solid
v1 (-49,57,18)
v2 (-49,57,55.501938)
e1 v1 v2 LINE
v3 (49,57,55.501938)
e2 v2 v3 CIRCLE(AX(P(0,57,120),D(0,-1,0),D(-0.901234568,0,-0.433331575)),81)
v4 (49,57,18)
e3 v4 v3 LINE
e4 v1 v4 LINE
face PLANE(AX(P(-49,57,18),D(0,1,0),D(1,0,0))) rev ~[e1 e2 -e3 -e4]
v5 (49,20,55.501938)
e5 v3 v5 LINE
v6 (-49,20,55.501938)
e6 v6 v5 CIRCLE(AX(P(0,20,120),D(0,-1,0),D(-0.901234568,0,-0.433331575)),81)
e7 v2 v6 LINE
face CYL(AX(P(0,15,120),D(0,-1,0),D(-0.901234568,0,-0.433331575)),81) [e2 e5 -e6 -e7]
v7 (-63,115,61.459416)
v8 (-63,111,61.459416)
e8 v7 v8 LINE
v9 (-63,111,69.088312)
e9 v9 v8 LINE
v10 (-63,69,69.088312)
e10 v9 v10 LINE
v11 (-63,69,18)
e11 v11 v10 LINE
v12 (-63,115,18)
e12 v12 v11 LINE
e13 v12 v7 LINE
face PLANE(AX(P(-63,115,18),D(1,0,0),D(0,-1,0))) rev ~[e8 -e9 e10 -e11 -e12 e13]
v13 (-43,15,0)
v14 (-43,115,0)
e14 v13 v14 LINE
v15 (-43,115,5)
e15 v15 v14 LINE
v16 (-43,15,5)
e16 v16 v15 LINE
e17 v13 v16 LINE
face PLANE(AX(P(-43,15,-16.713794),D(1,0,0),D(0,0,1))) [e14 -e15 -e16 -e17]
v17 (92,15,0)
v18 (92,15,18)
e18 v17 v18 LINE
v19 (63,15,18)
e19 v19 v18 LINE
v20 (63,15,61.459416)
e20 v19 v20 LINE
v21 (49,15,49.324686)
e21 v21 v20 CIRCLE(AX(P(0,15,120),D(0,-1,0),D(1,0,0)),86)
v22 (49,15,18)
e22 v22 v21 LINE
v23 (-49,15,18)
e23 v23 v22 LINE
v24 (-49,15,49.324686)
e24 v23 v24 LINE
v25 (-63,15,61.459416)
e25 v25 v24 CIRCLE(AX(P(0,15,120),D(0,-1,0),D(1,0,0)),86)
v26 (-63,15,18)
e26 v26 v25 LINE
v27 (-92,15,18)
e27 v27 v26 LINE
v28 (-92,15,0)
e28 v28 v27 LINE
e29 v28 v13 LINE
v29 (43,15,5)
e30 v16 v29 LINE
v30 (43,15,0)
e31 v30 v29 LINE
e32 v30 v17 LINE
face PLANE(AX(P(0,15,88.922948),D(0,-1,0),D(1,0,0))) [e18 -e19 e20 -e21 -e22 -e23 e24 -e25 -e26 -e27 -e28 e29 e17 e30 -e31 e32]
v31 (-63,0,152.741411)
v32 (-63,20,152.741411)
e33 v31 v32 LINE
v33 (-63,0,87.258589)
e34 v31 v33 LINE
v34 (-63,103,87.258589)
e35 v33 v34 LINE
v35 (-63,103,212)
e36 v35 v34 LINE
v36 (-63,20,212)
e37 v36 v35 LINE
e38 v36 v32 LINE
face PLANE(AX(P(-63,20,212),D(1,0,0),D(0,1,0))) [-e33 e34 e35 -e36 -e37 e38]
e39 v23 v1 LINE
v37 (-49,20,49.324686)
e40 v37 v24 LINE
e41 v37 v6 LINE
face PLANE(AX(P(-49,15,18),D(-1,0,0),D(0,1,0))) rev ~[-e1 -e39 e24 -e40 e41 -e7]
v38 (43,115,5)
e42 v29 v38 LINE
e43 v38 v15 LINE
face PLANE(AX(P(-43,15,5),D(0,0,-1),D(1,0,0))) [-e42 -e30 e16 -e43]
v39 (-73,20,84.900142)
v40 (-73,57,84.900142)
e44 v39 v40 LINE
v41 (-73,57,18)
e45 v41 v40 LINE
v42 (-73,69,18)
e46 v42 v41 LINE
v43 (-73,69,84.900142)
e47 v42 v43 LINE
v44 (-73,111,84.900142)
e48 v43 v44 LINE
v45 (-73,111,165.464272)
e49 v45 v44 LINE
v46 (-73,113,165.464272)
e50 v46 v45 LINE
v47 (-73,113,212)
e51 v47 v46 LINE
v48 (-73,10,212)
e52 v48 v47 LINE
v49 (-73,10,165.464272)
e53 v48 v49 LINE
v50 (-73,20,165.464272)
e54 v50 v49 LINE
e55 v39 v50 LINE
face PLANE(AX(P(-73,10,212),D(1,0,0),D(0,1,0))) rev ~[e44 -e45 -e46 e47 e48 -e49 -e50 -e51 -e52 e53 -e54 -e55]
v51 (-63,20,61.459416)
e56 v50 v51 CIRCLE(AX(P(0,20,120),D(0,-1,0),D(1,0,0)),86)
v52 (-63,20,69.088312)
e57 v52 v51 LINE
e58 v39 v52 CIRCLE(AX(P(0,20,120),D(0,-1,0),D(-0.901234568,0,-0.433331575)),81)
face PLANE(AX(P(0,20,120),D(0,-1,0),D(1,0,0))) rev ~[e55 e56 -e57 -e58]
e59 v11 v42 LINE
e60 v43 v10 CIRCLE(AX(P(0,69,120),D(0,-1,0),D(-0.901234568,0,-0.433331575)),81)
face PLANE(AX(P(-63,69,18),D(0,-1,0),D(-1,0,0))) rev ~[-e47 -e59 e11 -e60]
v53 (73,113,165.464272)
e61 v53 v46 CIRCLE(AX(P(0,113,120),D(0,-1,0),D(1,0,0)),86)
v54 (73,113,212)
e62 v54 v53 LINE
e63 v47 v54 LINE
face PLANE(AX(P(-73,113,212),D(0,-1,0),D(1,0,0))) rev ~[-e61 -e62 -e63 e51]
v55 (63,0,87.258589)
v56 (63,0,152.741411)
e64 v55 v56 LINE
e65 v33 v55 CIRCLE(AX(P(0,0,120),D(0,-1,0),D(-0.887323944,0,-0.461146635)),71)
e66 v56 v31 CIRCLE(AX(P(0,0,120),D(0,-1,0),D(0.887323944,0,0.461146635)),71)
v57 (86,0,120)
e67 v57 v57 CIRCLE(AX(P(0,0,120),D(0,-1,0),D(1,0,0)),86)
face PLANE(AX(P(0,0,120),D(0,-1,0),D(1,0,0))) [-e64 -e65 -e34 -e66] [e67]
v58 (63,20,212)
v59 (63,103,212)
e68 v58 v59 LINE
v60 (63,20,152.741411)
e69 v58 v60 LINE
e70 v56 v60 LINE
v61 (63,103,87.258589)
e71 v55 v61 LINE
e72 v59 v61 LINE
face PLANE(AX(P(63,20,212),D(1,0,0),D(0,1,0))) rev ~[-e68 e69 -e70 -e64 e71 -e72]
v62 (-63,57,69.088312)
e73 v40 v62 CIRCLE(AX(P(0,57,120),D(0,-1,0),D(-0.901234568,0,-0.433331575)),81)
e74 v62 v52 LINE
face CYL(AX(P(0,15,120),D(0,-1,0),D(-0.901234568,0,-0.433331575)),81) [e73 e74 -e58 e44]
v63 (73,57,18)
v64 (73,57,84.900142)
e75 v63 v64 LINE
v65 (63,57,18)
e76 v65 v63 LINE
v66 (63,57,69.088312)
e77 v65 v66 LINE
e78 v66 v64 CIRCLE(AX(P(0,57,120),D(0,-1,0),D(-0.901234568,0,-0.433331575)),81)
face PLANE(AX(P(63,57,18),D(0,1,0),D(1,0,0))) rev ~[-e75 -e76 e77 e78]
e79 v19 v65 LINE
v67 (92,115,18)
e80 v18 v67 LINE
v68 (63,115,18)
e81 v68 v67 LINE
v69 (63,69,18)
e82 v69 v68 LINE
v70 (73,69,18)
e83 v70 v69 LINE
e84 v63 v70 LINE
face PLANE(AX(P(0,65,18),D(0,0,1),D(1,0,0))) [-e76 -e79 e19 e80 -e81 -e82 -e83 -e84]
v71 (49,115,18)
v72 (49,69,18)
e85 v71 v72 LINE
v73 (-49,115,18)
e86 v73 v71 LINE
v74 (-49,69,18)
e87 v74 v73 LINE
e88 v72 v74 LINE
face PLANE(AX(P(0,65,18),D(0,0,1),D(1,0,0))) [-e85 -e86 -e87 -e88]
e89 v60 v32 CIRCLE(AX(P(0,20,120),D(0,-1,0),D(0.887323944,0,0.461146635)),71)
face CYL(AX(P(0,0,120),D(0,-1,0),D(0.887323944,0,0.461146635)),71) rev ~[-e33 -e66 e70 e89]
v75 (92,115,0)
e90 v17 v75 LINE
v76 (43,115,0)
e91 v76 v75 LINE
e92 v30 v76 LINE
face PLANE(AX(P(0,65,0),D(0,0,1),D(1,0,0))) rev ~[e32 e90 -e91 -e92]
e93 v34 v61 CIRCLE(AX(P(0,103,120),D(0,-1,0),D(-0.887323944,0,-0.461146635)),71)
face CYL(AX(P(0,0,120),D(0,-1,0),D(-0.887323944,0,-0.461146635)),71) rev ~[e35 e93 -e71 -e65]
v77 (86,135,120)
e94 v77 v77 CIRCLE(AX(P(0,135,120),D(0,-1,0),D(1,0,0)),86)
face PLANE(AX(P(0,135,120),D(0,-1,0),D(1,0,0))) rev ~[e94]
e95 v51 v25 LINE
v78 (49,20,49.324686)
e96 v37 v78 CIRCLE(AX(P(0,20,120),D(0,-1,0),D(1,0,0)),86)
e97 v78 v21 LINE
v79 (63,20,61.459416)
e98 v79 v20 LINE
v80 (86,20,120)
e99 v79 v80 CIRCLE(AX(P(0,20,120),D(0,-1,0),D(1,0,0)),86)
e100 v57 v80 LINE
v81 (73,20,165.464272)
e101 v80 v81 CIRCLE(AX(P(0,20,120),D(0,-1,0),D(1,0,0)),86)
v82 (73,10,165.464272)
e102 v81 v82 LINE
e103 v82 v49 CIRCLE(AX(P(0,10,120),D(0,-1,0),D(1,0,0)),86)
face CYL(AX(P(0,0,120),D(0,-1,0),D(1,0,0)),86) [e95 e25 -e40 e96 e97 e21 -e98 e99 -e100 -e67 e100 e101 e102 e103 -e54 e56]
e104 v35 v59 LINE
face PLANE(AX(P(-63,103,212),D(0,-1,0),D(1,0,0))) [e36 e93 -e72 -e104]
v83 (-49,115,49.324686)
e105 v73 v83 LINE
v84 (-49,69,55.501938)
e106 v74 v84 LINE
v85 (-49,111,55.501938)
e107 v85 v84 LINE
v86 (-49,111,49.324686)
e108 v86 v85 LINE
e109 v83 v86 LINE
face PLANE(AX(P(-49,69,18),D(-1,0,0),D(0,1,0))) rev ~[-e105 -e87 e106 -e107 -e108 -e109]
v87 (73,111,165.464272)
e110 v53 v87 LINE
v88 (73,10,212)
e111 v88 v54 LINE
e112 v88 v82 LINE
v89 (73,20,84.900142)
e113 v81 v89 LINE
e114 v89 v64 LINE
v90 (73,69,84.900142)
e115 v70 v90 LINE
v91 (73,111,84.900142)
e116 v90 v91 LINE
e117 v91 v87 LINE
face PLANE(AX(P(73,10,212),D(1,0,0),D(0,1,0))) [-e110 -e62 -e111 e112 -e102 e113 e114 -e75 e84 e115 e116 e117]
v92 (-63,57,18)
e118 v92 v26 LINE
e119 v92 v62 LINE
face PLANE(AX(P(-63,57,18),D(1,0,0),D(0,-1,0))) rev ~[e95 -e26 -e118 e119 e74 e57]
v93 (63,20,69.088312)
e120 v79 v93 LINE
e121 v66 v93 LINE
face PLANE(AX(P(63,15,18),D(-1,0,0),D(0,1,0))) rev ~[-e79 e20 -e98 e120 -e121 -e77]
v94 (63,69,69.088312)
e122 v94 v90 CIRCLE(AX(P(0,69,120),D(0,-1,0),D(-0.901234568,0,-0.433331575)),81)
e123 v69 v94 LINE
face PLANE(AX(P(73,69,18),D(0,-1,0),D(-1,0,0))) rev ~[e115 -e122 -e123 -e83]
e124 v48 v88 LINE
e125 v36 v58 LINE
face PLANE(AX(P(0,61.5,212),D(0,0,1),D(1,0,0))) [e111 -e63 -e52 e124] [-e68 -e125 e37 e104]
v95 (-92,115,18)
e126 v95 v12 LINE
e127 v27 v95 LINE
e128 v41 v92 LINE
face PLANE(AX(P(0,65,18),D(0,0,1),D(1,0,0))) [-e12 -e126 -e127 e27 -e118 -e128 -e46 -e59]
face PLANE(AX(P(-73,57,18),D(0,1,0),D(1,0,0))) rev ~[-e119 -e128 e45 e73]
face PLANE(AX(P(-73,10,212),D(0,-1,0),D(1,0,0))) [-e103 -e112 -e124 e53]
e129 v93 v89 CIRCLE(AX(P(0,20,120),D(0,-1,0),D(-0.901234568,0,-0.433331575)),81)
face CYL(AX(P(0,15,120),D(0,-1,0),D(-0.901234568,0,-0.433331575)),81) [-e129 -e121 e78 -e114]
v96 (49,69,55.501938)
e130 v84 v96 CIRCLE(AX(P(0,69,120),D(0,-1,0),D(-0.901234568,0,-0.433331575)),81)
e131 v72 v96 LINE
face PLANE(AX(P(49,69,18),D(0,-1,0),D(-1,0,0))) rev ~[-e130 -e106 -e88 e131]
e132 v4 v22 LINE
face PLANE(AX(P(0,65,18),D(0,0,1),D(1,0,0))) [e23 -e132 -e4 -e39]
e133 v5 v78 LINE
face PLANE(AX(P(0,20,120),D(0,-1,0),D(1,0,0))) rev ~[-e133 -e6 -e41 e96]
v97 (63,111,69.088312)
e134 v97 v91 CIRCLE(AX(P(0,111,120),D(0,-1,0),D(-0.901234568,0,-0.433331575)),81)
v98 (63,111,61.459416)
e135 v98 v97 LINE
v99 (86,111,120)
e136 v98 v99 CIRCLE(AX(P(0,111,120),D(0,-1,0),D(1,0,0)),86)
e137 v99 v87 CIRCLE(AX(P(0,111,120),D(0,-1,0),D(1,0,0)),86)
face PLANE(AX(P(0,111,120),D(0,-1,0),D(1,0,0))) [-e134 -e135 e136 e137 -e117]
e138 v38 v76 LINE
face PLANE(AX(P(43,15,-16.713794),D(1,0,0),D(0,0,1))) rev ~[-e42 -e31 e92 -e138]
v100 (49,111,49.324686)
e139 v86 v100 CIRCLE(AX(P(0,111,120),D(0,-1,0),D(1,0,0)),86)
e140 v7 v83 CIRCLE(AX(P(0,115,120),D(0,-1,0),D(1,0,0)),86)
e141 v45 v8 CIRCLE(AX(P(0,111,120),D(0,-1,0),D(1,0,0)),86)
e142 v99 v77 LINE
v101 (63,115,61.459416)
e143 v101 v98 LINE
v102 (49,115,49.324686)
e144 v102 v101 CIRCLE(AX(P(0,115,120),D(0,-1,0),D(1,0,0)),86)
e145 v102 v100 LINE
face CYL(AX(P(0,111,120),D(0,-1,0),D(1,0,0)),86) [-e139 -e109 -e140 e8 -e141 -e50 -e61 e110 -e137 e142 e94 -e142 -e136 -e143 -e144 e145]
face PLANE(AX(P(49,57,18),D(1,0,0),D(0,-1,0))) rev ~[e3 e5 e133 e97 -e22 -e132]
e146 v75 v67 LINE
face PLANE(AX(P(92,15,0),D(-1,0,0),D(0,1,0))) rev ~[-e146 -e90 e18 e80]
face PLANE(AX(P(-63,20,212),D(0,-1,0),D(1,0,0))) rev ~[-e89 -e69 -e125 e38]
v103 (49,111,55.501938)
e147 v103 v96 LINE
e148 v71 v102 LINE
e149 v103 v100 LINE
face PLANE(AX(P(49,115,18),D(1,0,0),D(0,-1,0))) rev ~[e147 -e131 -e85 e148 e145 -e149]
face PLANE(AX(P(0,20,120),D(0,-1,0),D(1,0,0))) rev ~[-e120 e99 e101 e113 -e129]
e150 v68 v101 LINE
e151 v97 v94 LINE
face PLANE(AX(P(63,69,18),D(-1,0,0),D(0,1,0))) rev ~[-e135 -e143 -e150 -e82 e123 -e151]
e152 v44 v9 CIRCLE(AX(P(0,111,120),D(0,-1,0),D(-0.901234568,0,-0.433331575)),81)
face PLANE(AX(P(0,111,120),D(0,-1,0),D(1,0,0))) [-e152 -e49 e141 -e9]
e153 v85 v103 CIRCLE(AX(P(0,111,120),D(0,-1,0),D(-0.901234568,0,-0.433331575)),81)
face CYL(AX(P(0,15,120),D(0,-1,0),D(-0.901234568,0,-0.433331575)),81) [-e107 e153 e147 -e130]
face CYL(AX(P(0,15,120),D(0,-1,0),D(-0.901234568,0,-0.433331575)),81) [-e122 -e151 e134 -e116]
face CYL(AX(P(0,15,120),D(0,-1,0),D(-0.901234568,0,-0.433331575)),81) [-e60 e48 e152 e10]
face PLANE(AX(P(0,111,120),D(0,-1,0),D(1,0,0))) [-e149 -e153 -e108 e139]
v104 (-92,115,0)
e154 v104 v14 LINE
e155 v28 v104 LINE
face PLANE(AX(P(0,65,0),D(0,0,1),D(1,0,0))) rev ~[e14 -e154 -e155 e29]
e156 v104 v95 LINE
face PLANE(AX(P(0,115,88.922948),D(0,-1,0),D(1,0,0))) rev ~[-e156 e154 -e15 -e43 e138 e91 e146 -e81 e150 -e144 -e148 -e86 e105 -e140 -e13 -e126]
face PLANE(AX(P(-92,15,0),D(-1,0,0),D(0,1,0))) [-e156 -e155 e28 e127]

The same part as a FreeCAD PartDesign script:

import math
import FreeCAD as App
import Part
import Sketcher


def add_polygon(sketch, points):
    """Adds a closed chain of lines whose ends are joined by coincident constraints."""
    first, n = sketch.GeometryCount, len(points)
    for a, b in zip(points, points[1:] + points[:1]):
        sketch.addGeometry(Part.LineSegment(App.Vector(*a, 0), App.Vector(*b, 0)), False)
    for i in range(n):
        sketch.addConstraint(Sketcher.Constraint("Coincident", first + i, 2, first + (i + 1) % n, 1))

doc = App.newDocument("Part")
body = doc.addObject("PartDesign::Body", "Body")

sketch1 = body.newObject("Sketcher::SketchObject", "Sketch")
sketch1.AttachmentSupport = (doc.getObject("XY_Plane"), [""])
sketch1.MapMode = "FlatFace"
add_polygon(sketch1, [(-92, 115), (-92, 15), (92, 15), (92, 115)])
sketch1.addConstraint([
    Sketcher.Constraint("Vertical", 0),
    Sketcher.Constraint("Horizontal", 1),
    Sketcher.Constraint("Vertical", 2),
    Sketcher.Constraint("Horizontal", 3),
    Sketcher.Constraint("DistanceX", 1, 1, 1, 2, 184.0),
    Sketcher.Constraint("DistanceY", 0, 2, 0, 1, 100.0),
    Sketcher.Constraint("DistanceX", 0, 2, -1, 1, 92.0),
    Sketcher.Constraint("DistanceY", -1, 1, 0, 2, 15.0),
])
pad1 = body.newObject("PartDesign::Pad", "Pad")
pad1.Profile = sketch1
pad1.Length = 18

sketch2 = body.newObject("Sketcher::SketchObject", "Sketch001")
sketch2.AttachmentSupport = (doc.getObject("XZ_Plane"), [""])
sketch2.MapMode = "FlatFace"
sketch2.AttachmentOffset = App.Placement(App.Vector(0, 0, -15), App.Rotation())
add_polygon(sketch2, [(-43, 5), (-43, -17), (43, -17), (43, 5)])
sketch2.addConstraint([
    Sketcher.Constraint("Vertical", 0),
    Sketcher.Constraint("Horizontal", 1),
    Sketcher.Constraint("Vertical", 2),
    Sketcher.Constraint("Horizontal", 3),
    Sketcher.Constraint("DistanceX", 1, 1, 1, 2, 86.0),
    Sketcher.Constraint("DistanceX", 0, 2, -1, 1, 43.0),
    Sketcher.Constraint("DistanceY", -1, 1, 2, 2, 5.0),
    Sketcher.Constraint("DistanceY", 0, 2, 0, 1, 21.713794),
])
pocket1 = body.newObject("PartDesign::Pocket", "Pocket")
pocket1.Profile = sketch2
pocket1.Type = "ThroughAll"

sketch3 = body.newObject("Sketcher::SketchObject", "Sketch002")
sketch3.AttachmentSupport = (doc.getObject("XY_Plane"), [""])
sketch3.MapMode = "FlatFace"
sketch3.AttachmentOffset = App.Placement(App.Vector(0, 0, 18), App.Rotation())
add_polygon(sketch3, [(-63, 57), (-63, 15), (-49, 15), (-49, 57), (49, 57), (49, 15), (63, 15), (63, 57), (73, 57), (73, 69), (63, 69), (63, 115), (49, 115), (49, 69), (-49, 69), (-49, 115), (-63, 115), (-63, 69), (-73, 69), (-73, 57)])
sketch3.addConstraint([
    Sketcher.Constraint("Vertical", 0),
    Sketcher.Constraint("Horizontal", 1),
    Sketcher.Constraint("Vertical", 2),
    Sketcher.Constraint("Horizontal", 3),
    Sketcher.Constraint("Vertical", 4),
    Sketcher.Constraint("Horizontal", 5),
    Sketcher.Constraint("Vertical", 6),
    Sketcher.Constraint("Horizontal", 7),
    Sketcher.Constraint("Vertical", 8),
    Sketcher.Constraint("Horizontal", 9),
    Sketcher.Constraint("Vertical", 10),
    Sketcher.Constraint("Horizontal", 11),
    Sketcher.Constraint("Vertical", 12),
    Sketcher.Constraint("Horizontal", 13),
    Sketcher.Constraint("Vertical", 14),
    Sketcher.Constraint("Horizontal", 15),
    Sketcher.Constraint("Vertical", 16),
    Sketcher.Constraint("Horizontal", 17),
    Sketcher.Constraint("Vertical", 18),
    Sketcher.Constraint("Horizontal", 19),
    Sketcher.Constraint("Symmetric", 1, 2, 4, 2, -2),
    Sketcher.Constraint("Symmetric", 11, 2, 14, 2, -2),
    Sketcher.Constraint("Symmetric", 9, 2, 16, 2, -2),
    Sketcher.Constraint("Symmetric", 7, 2, 18, 2, -2),
    Sketcher.Constraint("Horizontal", 3, 2, 6, 2),
    Sketcher.Constraint("Horizontal", 9, 2, 12, 2),
    Sketcher.Constraint("Vertical", 6, 2, 9, 2),
    Sketcher.Constraint("Vertical", 4, 2, 11, 2),
    Sketcher.Constraint("Vertical", 0, 2, 15, 2),
    Sketcher.Constraint("DistanceX", 1, 1, 1, 2, 14.0),
    Sketcher.Constraint("DistanceX", 3, 1, 3, 2, 98.0),
    Sketcher.Constraint("DistanceX", 7, 1, 7, 2, 10.0),
    Sketcher.Constraint("DistanceY", 0, 2, 0, 1, 42.0),
    Sketcher.Constraint("DistanceY", 8, 1, 8, 2, 12.0),
    Sketcher.Constraint("DistanceY", 10, 1, 10, 2, 46.0),
    Sketcher.Constraint("DistanceY", -1, 1, 0, 2, 15.0),
])
pad2 = body.newObject("PartDesign::Pad", "Pad001")
pad2.Profile = sketch3
pad2.Length = 92

sketch4 = body.newObject("Sketcher::SketchObject", "Sketch003")
sketch4.AttachmentSupport = (doc.getObject("XZ_Plane"), [""])
sketch4.MapMode = "FlatFace"
sketch4.AttachmentOffset = App.Placement(App.Vector(0, 0, -15), App.Rotation())
sketch4.addGeometry([
    Part.LineSegment(App.Vector(-73, 120, 0), App.Vector(-73, 85, 0)),
    Part.ArcOfCircle(Part.Circle(App.Vector(0, 120, 0), App.Vector(0, 0, 1), 81), math.radians(-154), math.radians(-26)),
    Part.LineSegment(App.Vector(73, 85, 0), App.Vector(73, 120, 0)),
    Part.LineSegment(App.Vector(73, 120, 0), App.Vector(-73, 120, 0)),
], False)
sketch4.addConstraint([
    Sketcher.Constraint("Coincident", 0, 2, 1, 1),
    Sketcher.Constraint("Coincident", 1, 2, 2, 1),
    Sketcher.Constraint("Coincident", 2, 2, 3, 1),
    Sketcher.Constraint("Coincident", 3, 2, 0, 1),
    Sketcher.Constraint("Vertical", 0),
    Sketcher.Constraint("Vertical", 2),
    Sketcher.Constraint("Horizontal", 3),
    Sketcher.Constraint("Symmetric", 0, 2, 1, 2, -2),
    Sketcher.Constraint("Horizontal", 1, 3, 2, 2),
    Sketcher.Constraint("Radius", 1, 81.0),
    Sketcher.Constraint("DistanceX", 3, 2, 3, 1, 146.0),
    Sketcher.Constraint("DistanceY", -1, 1, 1, 3, 120.0),
])
pad3 = body.newObject("PartDesign::Pad", "Pad002")
pad3.Profile = sketch4
pad3.Length = 100
pad3.Reversed = True

sketch5 = body.newObject("Sketcher::SketchObject", "Sketch004")
sketch5.AttachmentSupport = (doc.getObject("XZ_Plane"), [""])
sketch5.MapMode = "FlatFace"
sketch5.addGeometry(Part.Circle(App.Vector(0, 120, 0), App.Vector(0, 0, 1), 86), False)
sketch5.addConstraint([
    Sketcher.Constraint("PointOnObject", 0, 3, -2),
    Sketcher.Constraint("Diameter", 0, 172.0),
    Sketcher.Constraint("DistanceY", -1, 1, 0, 3, 120.0),
])
pad4 = body.newObject("PartDesign::Pad", "Pad003")
pad4.Profile = sketch5
pad4.Length = 20
pad4.Reversed = True

sketch6 = body.newObject("Sketcher::SketchObject", "Sketch005")
sketch6.AttachmentSupport = (doc.getObject("XZ_Plane"), [""])
sketch6.MapMode = "FlatFace"
sketch6.AttachmentOffset = App.Placement(App.Vector(0, 0, -111), App.Rotation())
sketch6.addGeometry(Part.Circle(App.Vector(0, 120, 0), App.Vector(0, 0, 1), 86), False)
sketch6.addConstraint([
    Sketcher.Constraint("PointOnObject", 0, 3, -2),
    Sketcher.Constraint("Diameter", 0, 172.0),
    Sketcher.Constraint("DistanceY", -1, 1, 0, 3, 120.0),
])
pad5 = body.newObject("PartDesign::Pad", "Pad004")
pad5.Profile = sketch6
pad5.Length = 24
pad5.Reversed = True

sketch7 = body.newObject("Sketcher::SketchObject", "Sketch006")
sketch7.AttachmentSupport = (doc.getObject("XY_Plane"), [""])
sketch7.MapMode = "FlatFace"
sketch7.AttachmentOffset = App.Placement(App.Vector(0, 0, 212), App.Rotation())
add_polygon(sketch7, [(-73, 113), (-73, 10), (73, 10), (73, 113)])
sketch7.addConstraint([
    Sketcher.Constraint("Vertical", 0),
    Sketcher.Constraint("Horizontal", 1),
    Sketcher.Constraint("Vertical", 2),
    Sketcher.Constraint("Horizontal", 3),
    Sketcher.Constraint("DistanceX", 1, 1, 1, 2, 146.0),
    Sketcher.Constraint("DistanceY", 0, 2, 0, 1, 103.0),
    Sketcher.Constraint("DistanceX", 0, 2, -1, 1, 73.0),
    Sketcher.Constraint("DistanceY", -1, 1, 0, 2, 10.0),
])
pad6 = body.newObject("PartDesign::Pad", "Pad005")
pad6.Profile = sketch7
pad6.Length = 92
pad6.Reversed = True

sketch8 = body.newObject("Sketcher::SketchObject", "Sketch007")
sketch8.AttachmentSupport = (doc.getObject("XZ_Plane"), [""])
sketch8.MapMode = "FlatFace"
sketch8.addGeometry([
    Part.LineSegment(App.Vector(-63, 153, 0), App.Vector(-63, 87, 0)),
    Part.ArcOfCircle(Part.Circle(App.Vector(0, 120, 0), App.Vector(0, 0, 1), 71), math.radians(-153), math.radians(-27)),
    Part.LineSegment(App.Vector(63, 87, 0), App.Vector(63, 153, 0)),
    Part.ArcOfCircle(Part.Circle(App.Vector(0, 120, 0), App.Vector(0, 0, 1), 71), math.radians(27), math.radians(153)),
], False)
sketch8.addConstraint([
    Sketcher.Constraint("Coincident", 0, 2, 1, 1),
    Sketcher.Constraint("Coincident", 1, 2, 2, 1),
    Sketcher.Constraint("Coincident", 2, 2, 3, 1),
    Sketcher.Constraint("Coincident", 3, 2, 0, 1),
    Sketcher.Constraint("Vertical", 0),
    Sketcher.Constraint("Vertical", 2),
    Sketcher.Constraint("Coincident", 3, 3, 1, 3),
    Sketcher.Constraint("Equal", 1, 3),
    Sketcher.Constraint("Symmetric", 0, 2, 1, 2, -2),
    Sketcher.Constraint("Radius", 1, 71.0),
    Sketcher.Constraint("DistanceY", -1, 1, 1, 3, 120.0),
    Sketcher.Constraint("DistanceX", 0, 2, -1, 1, 63.0),
])
pocket2 = body.newObject("PartDesign::Pocket", "Pocket001")
pocket2.Profile = sketch8
pocket2.Length = 103

sketch9 = body.newObject("Sketcher::SketchObject", "Sketch008")
sketch9.AttachmentSupport = (doc.getObject("XY_Plane"), [""])
sketch9.MapMode = "FlatFace"
sketch9.AttachmentOffset = App.Placement(App.Vector(0, 0, 212), App.Rotation())
add_polygon(sketch9, [(-63, 103), (-63, 20), (63, 20), (63, 103)])
sketch9.addConstraint([
    Sketcher.Constraint("Vertical", 0),
    Sketcher.Constraint("Horizontal", 1),
    Sketcher.Constraint("Vertical", 2),
    Sketcher.Constraint("Horizontal", 3),
    Sketcher.Constraint("DistanceX", 1, 1, 1, 2, 126.0),
    Sketcher.Constraint("DistanceY", 0, 2, 0, 1, 83.0),
    Sketcher.Constraint("DistanceX", 0, 2, -1, 1, 63.0),
    Sketcher.Constraint("DistanceY", -1, 1, 0, 2, 20.0),
])
pocket3 = body.newObject("PartDesign::Pocket", "Pocket002")
pocket3.Profile = sketch9
pocket3.Length = 59.259589

doc.recompute()
